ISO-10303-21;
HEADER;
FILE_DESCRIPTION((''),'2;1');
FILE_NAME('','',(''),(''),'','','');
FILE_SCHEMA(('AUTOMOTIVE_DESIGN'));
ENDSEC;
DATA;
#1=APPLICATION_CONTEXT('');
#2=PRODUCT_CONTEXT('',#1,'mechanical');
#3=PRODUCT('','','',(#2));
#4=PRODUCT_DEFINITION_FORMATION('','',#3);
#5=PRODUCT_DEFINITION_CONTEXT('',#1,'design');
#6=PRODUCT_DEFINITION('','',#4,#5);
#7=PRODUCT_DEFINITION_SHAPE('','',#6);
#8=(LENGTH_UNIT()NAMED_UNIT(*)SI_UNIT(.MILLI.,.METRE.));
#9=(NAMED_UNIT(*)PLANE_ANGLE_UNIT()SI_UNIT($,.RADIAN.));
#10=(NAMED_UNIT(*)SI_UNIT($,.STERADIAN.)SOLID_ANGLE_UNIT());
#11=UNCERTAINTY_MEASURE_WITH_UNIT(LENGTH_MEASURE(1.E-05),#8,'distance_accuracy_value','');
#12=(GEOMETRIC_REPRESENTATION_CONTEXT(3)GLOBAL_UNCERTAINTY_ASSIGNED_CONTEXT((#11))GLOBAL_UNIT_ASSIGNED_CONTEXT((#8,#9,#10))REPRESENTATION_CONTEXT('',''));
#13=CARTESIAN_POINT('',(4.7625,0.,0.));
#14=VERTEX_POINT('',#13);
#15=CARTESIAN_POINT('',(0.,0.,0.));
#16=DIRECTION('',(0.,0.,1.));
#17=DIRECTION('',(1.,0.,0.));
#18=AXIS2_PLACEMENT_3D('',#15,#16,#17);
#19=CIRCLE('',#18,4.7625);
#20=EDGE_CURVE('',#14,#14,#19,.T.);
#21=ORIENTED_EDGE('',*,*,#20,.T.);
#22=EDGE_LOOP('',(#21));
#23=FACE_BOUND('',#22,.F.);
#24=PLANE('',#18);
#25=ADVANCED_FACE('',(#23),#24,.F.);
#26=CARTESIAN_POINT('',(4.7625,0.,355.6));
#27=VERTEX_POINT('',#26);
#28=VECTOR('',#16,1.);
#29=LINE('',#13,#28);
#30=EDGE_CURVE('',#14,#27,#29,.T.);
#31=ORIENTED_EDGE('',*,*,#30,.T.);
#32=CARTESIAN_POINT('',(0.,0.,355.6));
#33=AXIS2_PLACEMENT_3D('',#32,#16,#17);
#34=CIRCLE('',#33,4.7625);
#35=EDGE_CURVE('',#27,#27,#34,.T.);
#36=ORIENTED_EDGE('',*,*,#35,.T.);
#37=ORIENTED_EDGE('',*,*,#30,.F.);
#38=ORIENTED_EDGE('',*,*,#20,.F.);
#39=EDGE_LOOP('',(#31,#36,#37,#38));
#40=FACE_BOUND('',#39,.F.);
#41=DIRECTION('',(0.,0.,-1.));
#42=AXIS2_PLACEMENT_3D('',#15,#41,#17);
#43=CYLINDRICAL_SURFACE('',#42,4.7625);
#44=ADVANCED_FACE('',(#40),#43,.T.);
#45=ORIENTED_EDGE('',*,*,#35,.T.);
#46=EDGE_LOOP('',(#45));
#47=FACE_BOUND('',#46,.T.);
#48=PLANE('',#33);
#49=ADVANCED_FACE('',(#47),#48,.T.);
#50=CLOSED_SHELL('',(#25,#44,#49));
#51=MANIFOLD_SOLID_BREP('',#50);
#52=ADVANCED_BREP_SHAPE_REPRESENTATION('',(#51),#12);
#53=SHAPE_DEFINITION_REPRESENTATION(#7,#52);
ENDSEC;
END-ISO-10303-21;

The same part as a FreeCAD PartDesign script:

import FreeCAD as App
import Part
import Sketcher
Q = App.Units.Quantity

doc = App.newDocument("Part")
body = doc.addObject("PartDesign::Body", "Body")

# Sketch on XY plane
sketch1 = body.newObject("Sketcher::SketchObject", "Sketch")
sketch1.AttachmentSupport = (doc.getObject("XY_Plane"), [""])
sketch1.MapMode = "FlatFace"
sketch1.addGeometry(Part.Circle(App.Vector(0, 0, 0), App.Vector(0, 0, 1), 4.7625), False)
sketch1.addConstraint([
    Sketcher.Constraint("Coincident", 0, 3, -1, 1),
    Sketcher.Constraint("Diameter", 0, Q("0.375 in")),
])
pad1 = body.newObject("PartDesign::Pad", "Pad")
pad1.Profile = sketch1
pad1.Length = Q("14 in")

doc.recompute()
